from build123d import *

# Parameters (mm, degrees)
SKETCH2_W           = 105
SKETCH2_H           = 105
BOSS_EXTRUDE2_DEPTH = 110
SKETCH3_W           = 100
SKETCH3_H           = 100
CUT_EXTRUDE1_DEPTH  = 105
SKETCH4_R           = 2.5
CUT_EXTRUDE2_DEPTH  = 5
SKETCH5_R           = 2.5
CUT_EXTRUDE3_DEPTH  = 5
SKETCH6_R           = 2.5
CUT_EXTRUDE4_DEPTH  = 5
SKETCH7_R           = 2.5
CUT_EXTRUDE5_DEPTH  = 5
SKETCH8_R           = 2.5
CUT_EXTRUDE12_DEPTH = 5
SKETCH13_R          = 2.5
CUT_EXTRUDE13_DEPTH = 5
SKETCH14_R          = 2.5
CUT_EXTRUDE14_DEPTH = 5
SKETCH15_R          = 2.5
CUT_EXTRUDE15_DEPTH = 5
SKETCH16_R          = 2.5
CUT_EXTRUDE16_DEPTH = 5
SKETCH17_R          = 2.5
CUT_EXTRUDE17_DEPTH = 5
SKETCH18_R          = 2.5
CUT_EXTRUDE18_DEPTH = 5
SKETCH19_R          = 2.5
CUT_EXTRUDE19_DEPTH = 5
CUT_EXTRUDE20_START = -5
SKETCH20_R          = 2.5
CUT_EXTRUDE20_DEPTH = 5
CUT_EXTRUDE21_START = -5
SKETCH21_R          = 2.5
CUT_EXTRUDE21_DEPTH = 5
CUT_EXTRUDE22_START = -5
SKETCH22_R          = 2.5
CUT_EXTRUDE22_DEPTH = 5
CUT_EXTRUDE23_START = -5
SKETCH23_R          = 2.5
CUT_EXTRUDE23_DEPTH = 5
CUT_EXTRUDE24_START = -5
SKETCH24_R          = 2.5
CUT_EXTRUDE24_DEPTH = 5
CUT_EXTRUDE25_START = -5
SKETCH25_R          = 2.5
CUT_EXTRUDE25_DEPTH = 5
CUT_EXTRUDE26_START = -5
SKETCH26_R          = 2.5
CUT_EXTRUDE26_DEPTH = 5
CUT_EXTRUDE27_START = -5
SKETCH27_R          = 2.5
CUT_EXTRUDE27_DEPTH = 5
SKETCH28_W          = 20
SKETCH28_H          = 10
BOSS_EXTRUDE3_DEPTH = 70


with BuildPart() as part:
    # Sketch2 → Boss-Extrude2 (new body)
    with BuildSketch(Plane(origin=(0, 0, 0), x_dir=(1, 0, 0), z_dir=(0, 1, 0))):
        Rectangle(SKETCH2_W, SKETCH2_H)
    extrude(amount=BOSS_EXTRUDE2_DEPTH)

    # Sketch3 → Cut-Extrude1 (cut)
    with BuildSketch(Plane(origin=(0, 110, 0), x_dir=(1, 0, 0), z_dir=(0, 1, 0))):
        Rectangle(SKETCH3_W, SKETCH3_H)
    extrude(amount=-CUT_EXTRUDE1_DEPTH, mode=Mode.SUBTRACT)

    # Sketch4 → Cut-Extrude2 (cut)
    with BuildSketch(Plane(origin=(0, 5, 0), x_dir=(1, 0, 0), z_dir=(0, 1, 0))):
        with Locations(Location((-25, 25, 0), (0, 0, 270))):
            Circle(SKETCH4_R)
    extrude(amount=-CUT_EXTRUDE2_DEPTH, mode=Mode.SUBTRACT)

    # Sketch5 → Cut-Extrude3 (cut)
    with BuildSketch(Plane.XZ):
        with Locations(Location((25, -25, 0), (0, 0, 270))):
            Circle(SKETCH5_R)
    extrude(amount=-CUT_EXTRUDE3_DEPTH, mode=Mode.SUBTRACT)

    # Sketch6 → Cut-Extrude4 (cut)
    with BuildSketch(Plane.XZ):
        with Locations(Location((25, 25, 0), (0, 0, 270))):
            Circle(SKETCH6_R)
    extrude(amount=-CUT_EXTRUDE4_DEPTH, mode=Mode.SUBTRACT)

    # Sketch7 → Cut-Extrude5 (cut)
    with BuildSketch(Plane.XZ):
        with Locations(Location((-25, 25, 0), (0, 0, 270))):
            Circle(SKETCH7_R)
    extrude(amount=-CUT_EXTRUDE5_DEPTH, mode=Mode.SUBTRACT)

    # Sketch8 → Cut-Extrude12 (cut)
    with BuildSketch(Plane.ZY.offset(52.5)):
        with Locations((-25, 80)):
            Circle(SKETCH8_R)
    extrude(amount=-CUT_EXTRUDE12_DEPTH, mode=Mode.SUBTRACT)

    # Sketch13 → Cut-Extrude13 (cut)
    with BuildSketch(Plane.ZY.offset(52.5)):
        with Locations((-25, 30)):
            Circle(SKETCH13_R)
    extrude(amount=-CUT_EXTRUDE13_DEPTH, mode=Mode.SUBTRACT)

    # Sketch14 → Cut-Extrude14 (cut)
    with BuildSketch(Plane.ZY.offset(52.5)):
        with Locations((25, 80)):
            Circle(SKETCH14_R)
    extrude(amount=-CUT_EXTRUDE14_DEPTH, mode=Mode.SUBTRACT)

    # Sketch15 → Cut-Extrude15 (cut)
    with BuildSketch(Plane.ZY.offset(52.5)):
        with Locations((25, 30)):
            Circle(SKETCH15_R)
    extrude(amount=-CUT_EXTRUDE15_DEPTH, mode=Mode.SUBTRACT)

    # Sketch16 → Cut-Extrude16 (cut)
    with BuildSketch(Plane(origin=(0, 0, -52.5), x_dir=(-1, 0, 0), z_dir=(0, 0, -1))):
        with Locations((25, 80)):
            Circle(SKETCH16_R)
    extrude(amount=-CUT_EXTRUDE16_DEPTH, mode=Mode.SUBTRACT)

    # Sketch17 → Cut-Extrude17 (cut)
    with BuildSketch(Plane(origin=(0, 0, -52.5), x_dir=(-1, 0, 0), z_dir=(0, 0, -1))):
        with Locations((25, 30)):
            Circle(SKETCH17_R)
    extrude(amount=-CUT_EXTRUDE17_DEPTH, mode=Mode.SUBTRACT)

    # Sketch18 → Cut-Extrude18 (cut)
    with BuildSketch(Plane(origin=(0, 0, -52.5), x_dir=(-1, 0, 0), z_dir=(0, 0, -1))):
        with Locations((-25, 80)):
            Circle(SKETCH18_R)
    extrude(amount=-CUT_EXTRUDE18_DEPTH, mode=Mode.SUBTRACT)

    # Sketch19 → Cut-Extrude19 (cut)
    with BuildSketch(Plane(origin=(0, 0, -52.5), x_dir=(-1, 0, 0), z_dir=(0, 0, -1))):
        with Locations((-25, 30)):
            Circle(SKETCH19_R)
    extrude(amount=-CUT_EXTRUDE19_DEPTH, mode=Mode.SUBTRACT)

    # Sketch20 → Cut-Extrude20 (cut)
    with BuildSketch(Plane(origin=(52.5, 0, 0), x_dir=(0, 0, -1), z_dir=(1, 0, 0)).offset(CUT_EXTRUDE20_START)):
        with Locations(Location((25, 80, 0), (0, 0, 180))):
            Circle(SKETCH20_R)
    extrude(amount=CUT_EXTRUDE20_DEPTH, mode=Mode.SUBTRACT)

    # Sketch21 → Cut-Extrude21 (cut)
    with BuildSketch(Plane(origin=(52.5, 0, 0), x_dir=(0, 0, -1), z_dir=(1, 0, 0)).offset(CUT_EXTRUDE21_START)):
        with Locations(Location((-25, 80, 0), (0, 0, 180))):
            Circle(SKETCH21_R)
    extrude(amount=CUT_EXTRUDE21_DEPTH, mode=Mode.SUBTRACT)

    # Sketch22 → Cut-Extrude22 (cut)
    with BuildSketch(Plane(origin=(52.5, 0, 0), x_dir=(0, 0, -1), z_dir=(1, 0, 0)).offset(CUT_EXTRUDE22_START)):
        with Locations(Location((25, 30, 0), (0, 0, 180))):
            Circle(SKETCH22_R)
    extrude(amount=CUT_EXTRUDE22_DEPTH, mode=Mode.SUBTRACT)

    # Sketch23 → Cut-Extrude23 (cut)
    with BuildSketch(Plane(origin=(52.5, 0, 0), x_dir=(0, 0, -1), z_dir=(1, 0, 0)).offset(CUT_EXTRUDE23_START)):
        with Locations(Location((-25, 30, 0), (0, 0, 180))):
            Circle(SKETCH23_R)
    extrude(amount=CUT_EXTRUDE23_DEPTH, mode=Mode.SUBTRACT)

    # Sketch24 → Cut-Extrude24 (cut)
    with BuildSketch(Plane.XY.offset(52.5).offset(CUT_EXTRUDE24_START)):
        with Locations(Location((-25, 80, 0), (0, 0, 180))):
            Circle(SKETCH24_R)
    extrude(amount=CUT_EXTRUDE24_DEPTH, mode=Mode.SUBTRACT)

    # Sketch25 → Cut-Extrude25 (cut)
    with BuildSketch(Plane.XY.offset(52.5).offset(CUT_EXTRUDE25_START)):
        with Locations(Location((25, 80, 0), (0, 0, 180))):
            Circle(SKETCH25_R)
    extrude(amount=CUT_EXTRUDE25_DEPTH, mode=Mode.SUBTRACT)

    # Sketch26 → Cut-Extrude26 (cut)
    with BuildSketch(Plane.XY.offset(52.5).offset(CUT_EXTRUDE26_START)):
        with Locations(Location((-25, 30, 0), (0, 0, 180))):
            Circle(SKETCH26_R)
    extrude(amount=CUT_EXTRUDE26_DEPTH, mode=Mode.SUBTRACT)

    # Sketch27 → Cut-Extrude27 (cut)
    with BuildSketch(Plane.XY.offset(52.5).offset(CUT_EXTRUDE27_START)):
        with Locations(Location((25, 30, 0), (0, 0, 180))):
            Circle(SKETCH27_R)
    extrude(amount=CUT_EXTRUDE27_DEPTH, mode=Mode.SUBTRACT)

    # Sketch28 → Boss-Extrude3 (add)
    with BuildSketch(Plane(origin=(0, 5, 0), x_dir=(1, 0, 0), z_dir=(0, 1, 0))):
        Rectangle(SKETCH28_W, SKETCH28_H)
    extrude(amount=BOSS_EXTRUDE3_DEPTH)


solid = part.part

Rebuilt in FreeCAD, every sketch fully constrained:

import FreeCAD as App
import Part
import Sketcher
Q = App.Units.Quantity


def add_polygon(sketch, points):
    """Adds a closed chain of lines whose ends are joined by coincident constraints."""
    first, n = sketch.GeometryCount, len(points)
    for a, b in zip(points, points[1:] + points[:1]):
        sketch.addGeometry(Part.LineSegment(App.Vector(*a, 0), App.Vector(*b, 0)), False)
    for i in range(n):
        sketch.addConstraint(Sketcher.Constraint("Coincident", first + i, 2, first + (i + 1) % n, 1))

doc = App.newDocument("Part")
params = doc.addObject("Spreadsheet::Sheet", "Params")
for row, (alias, value) in enumerate([
    ("sketch1_width", "105 mm"),
    ("pad1_length", "110 mm"),
    ("sketch2_width", "100 mm"),
    ("pocket1_length", "105 mm"),
    ("sketch3_diameter", "5 mm"),
    ("pocket2_length", "5 mm"),
    ("sketch4_diameter", "5 mm"),
    ("pocket3_length", "5 mm"),
    ("sketch5_diameter", "5 mm"),
    ("pocket4_length", "5 mm"),
    ("sketch6_diameter", "5 mm"),
    ("pocket5_length", "5 mm"),
    ("sketch7_diameter", "5 mm"),
    ("pocket6_length", "5 mm"),
    ("sketch8_diameter", "5 mm"),
    ("pocket7_length", "5 mm"),
    ("sketch9_diameter", "5 mm"),
    ("pocket8_length", "5 mm"),
    ("sketch10_diameter", "5 mm"),
    ("pocket9_length", "5 mm"),
    ("sketch11_diameter", "5 mm"),
    ("pocket10_length", "5 mm"),
    ("sketch12_diameter", "5 mm"),
    ("pocket11_length", "5 mm"),
    ("sketch13_diameter", "5 mm"),
    ("pocket12_length", "5 mm"),
    ("sketch14_diameter", "5 mm"),
    ("pocket13_length", "5 mm"),
    ("sketch15_diameter", "5 mm"),
    ("pocket14_length", "5 mm"),
    ("sketch16_diameter", "5 mm"),
    ("pocket15_length", "5 mm"),
    ("sketch17_diameter", "5 mm"),
    ("pocket16_length", "5 mm"),
    ("sketch18_diameter", "5 mm"),
    ("pocket17_length", "5 mm"),
    ("sketch19_diameter", "5 mm"),
    ("pocket18_length", "5 mm"),
    ("sketch20_diameter", "5 mm"),
    ("pocket19_length", "5 mm"),
    ("sketch21_diameter", "5 mm"),
    ("pocket20_length", "5 mm"),
    ("sketch22_diameter", "5 mm"),
    ("pocket21_length", "5 mm"),
    ("sketch23_width", "20 mm"),
    ("sketch23_height", "10 mm"),
    ("pad2_length", "70 mm"),
], start=1):
    params.set(f"A{row}", alias)
    params.set(f"B{row}", "=" + value)
    params.setAlias(f"B{row}", alias)

body = doc.addObject("PartDesign::Body", "Body")

sketch1 = body.newObject("Sketcher::SketchObject", "Sketch")
sketch1.AttachmentSupport = (doc.getObject("XZ_Plane"), [""])
sketch1.MapMode = "FlatFace"
add_polygon(sketch1, [(-52, -52), (-52, 52), (52, 52), (52, -52)])
sketch1.addConstraint(Sketcher.Constraint("Vertical", 0))
sketch1.addConstraint(Sketcher.Constraint("Horizontal", 1))
sketch1.addConstraint(Sketcher.Constraint("Vertical", 2))
sketch1.addConstraint(Sketcher.Constraint("Horizontal", 3))
sketch1.addConstraint(Sketcher.Constraint("Symmetric", 0, 2, 2, 2, -1, 1))
sketch1.addConstraint(Sketcher.Constraint("Equal", 3, 0))
sketch1.addConstraint(Sketcher.Constraint("DistanceX", 1, 1, 1, 2, Q("105 mm")))
sketch1.setExpression("Constraints[10]", "Params.sketch1_width")
pad1 = body.newObject("PartDesign::Pad", "Pad")
pad1.Profile = sketch1
pad1.setExpression("Length", "Params.pad1_length")
pad1.Reversed = True

sketch2 = body.newObject("Sketcher::SketchObject", "Sketch001")
sketch2.AttachmentSupport = (doc.getObject("XZ_Plane"), [""])
sketch2.MapMode = "FlatFace"
sketch2.AttachmentOffset = App.Placement(App.Vector(0, 0, -110), App.Rotation())
add_polygon(sketch2, [(-50, -50), (-50, 50), (50, 50), (50, -50)])
sketch2.addConstraint(Sketcher.Constraint("Vertical", 0))
sketch2.addConstraint(Sketcher.Constraint("Horizontal", 1))
sketch2.addConstraint(Sketcher.Constraint("Vertical", 2))
sketch2.addConstraint(Sketcher.Constraint("Horizontal", 3))
sketch2.addConstraint(Sketcher.Constraint("Symmetric", 0, 2, 2, 2, -1, 1))
sketch2.addConstraint(Sketcher.Constraint("Equal", 3, 0))
sketch2.addConstraint(Sketcher.Constraint("DistanceX", 1, 1, 1, 2, Q("100 mm")))
sketch2.setExpression("Constraints[10]", "Params.sketch2_width")
pocket1 = body.newObject("PartDesign::Pocket", "Pocket")
pocket1.Profile = sketch2
pocket1.setExpression("Length", "Params.pocket1_length")
pocket1.Reversed = True

sketch3 = body.newObject("Sketcher::SketchObject", "Sketch002")
sketch3.AttachmentSupport = (doc.getObject("XZ_Plane"), [""])
sketch3.MapMode = "FlatFace"
sketch3.AttachmentOffset = App.Placement(App.Vector(0, 0, -5), App.Rotation())
sketch3.addGeometry(Part.Circle(App.Vector(-25, -25, 0), App.Vector(0, 0, 1), 2.5), False)
sketch3.addConstraint(Sketcher.Constraint("Diameter", 0, Q("5 mm")))
sketch3.addConstraint(Sketcher.Constraint("DistanceX", 0, 3, -1, 1, Q("25 mm")))
sketch3.addConstraint(Sketcher.Constraint("DistanceY", 0, 3, -1, 1, Q("25 mm")))
sketch3.setExpression("Constraints[0]", "Params.sketch3_diameter")
pocket2 = body.newObject("PartDesign::Pocket", "Pocket001")
pocket2.Profile = sketch3
pocket2.setExpression("Length", "Params.pocket2_length")
pocket2.Reversed = True

sketch4 = body.newObject("Sketcher::SketchObject", "Sketch003")
sketch4.AttachmentSupport = (doc.getObject("XZ_Plane"), [""])
sketch4.MapMode = "FlatFace"
sketch4.addGeometry(Part.Circle(App.Vector(25, -25, 0), App.Vector(0, 0, 1), 2.5), False)
sketch4.addConstraint(Sketcher.Constraint("Diameter", 0, Q("5 mm")))
sketch4.addConstraint(Sketcher.Constraint("DistanceX", -1, 1, 0, 3, Q("25 mm")))
sketch4.addConstraint(Sketcher.Constraint("DistanceY", 0, 3, -1, 1, Q("25 mm")))
sketch4.setExpression("Constraints[0]", "Params.sketch4_diameter")
pocket3 = body.newObject("PartDesign::Pocket", "Pocket002")
pocket3.Profile = sketch4
pocket3.setExpression("Length", "Params.pocket3_length")

sketch5 = body.newObject("Sketcher::SketchObject", "Sketch004")
sketch5.AttachmentSupport = (doc.getObject("XZ_Plane"), [""])
sketch5.MapMode = "FlatFace"
sketch5.addGeometry(Part.Circle(App.Vector(25, 25, 0), App.Vector(0, 0, 1), 2.5), False)
sketch5.addConstraint(Sketcher.Constraint("Diameter", 0, Q("5 mm")))
sketch5.addConstraint(Sketcher.Constraint("DistanceX", -1, 1, 0, 3, Q("25 mm")))
sketch5.addConstraint(Sketcher.Constraint("DistanceY", -1, 1, 0, 3, Q("25 mm")))
sketch5.setExpression("Constraints[0]", "Params.sketch5_diameter")
pocket4 = body.newObject("PartDesign::Pocket", "Pocket003")
pocket4.Profile = sketch5
pocket4.setExpression("Length", "Params.pocket4_length")

sketch6 = body.newObject("Sketcher::SketchObject", "Sketch005")
sketch6.AttachmentSupport = (doc.getObject("XZ_Plane"), [""])
sketch6.MapMode = "FlatFace"
sketch6.addGeometry(Part.Circle(App.Vector(-25, 25, 0), App.Vector(0, 0, 1), 2.5), False)
sketch6.addConstraint(Sketcher.Constraint("Diameter", 0, Q("5 mm")))
sketch6.addConstraint(Sketcher.Constraint("DistanceX", 0, 3, -1, 1, Q("25 mm")))
sketch6.addConstraint(Sketcher.Constraint("DistanceY", -1, 1, 0, 3, Q("25 mm")))
sketch6.setExpression("Constraints[0]", "Params.sketch6_diameter")
pocket5 = body.newObject("PartDesign::Pocket", "Pocket004")
pocket5.Profile = sketch6
pocket5.setExpression("Length", "Params.pocket5_length")

sketch7 = body.newObject("Sketcher::SketchObject", "Sketch006")
sketch7.AttachmentSupport = (doc.getObject("YZ_Plane"), [""])
sketch7.MapMode = "FlatFace"
sketch7.AttachmentOffset = App.Placement(App.Vector(0, 0, -52.5), App.Rotation())
sketch7.addGeometry(Part.Circle(App.Vector(80, -25, 0), App.Vector(0, 0, 1), 2.5), False)
sketch7.addConstraint(Sketcher.Constraint("Diameter", 0, Q("5 mm")))
sketch7.addConstraint(Sketcher.Constraint("DistanceX", -1, 1, 0, 3, Q("80 mm")))
sketch7.addConstraint(Sketcher.Constraint("DistanceY", 0, 3, -1, 1, Q("25 mm")))
sketch7.setExpression("Constraints[0]", "Params.sketch7_diameter")
pocket6 = body.newObject("PartDesign::Pocket", "Pocket005")
pocket6.Profile = sketch7
pocket6.setExpression("Length", "Params.pocket6_length")
pocket6.Reversed = True

sketch8 = body.newObject("Sketcher::SketchObject", "Sketch007")
sketch8.AttachmentSupport = (doc.getObject("YZ_Plane"), [""])
sketch8.MapMode = "FlatFace"
sketch8.AttachmentOffset = App.Placement(App.Vector(0, 0, -52.5), App.Rotation())
sketch8.addGeometry(Part.Circle(App.Vector(30, -25, 0), App.Vector(0, 0, 1), 2.5), False)
sketch8.addConstraint(Sketcher.Constraint("Diameter", 0, Q("5 mm")))
sketch8.addConstraint(Sketcher.Constraint("DistanceX", -1, 1, 0, 3, Q("30 mm")))
sketch8.addConstraint(Sketcher.Constraint("DistanceY", 0, 3, -1, 1, Q("25 mm")))
sketch8.setExpression("Constraints[0]", "Params.sketch8_diameter")
pocket7 = body.newObject("PartDesign::Pocket", "Pocket006")
pocket7.Profile = sketch8
pocket7.setExpression("Length", "Params.pocket7_length")
pocket7.Reversed = True

sketch9 = body.newObject("Sketcher::SketchObject", "Sketch008")
sketch9.AttachmentSupport = (doc.getObject("YZ_Plane"), [""])
sketch9.MapMode = "FlatFace"
sketch9.AttachmentOffset = App.Placement(App.Vector(0, 0, -52.5), App.Rotation())
sketch9.addGeometry(Part.Circle(App.Vector(80, 25, 0), App.Vector(0, 0, 1), 2.5), False)
sketch9.addConstraint(Sketcher.Constraint("Diameter", 0, Q("5 mm")))
sketch9.addConstraint(Sketcher.Constraint("DistanceX", -1, 1, 0, 3, Q("80 mm")))
sketch9.addConstraint(Sketcher.Constraint("DistanceY", -1, 1, 0, 3, Q("25 mm")))
sketch9.setExpression("Constraints[0]", "Params.sketch9_diameter")
pocket8 = body.newObject("PartDesign::Pocket", "Pocket007")
pocket8.Profile = sketch9
pocket8.setExpression("Length", "Params.pocket8_length")
pocket8.Reversed = True

sketch10 = body.newObject("Sketcher::SketchObject", "Sketch009")
sketch10.AttachmentSupport = (doc.getObject("YZ_Plane"), [""])
sketch10.MapMode = "FlatFace"
sketch10.AttachmentOffset = App.Placement(App.Vector(0, 0, -52.5), App.Rotation())
sketch10.addGeometry(Part.Circle(App.Vector(30, 25, 0), App.Vector(0, 0, 1), 2.5), False)
sketch10.addConstraint(Sketcher.Constraint("Diameter", 0, Q("5 mm")))
sketch10.addConstraint(Sketcher.Constraint("DistanceX", -1, 1, 0, 3, Q("30 mm")))
sketch10.addConstraint(Sketcher.Constraint("DistanceY", -1, 1, 0, 3, Q("25 mm")))
sketch10.setExpression("Constraints[0]", "Params.sketch10_diameter")
pocket9 = body.newObject("PartDesign::Pocket", "Pocket008")
pocket9.Profile = sketch10
pocket9.setExpression("Length", "Params.pocket9_length")
pocket9.Reversed = True

sketch11 = body.newObject("Sketcher::SketchObject", "Sketch010")
sketch11.AttachmentSupport = (doc.getObject("XY_Plane"), [""])
sketch11.MapMode = "FlatFace"
sketch11.AttachmentOffset = App.Placement(App.Vector(0, 0, -52.5), App.Rotation())
sketch11.addGeometry(Part.Circle(App.Vector(-25, 80, 0), App.Vector(0, 0, 1), 2.5), False)
sketch11.addConstraint(Sketcher.Constraint("Diameter", 0, Q("5 mm")))
sketch11.addConstraint(Sketcher.Constraint("DistanceX", 0, 3, -1, 1, Q("25 mm")))
sketch11.addConstraint(Sketcher.Constraint("DistanceY", -1, 1, 0, 3, Q("80 mm")))
sketch11.setExpression("Constraints[0]", "Params.sketch11_diameter")
pocket10 = body.newObject("PartDesign::Pocket", "Pocket009")
pocket10.Profile = sketch11
pocket10.setExpression("Length", "Params.pocket10_length")
pocket10.Reversed = True

sketch12 = body.newObject("Sketcher::SketchObject", "Sketch011")
sketch12.AttachmentSupport = (doc.getObject("XY_Plane"), [""])
sketch12.MapMode = "FlatFace"
sketch12.AttachmentOffset = App.Placement(App.Vector(0, 0, -52.5), App.Rotation())
sketch12.addGeometry(Part.Circle(App.Vector(-25, 30, 0), App.Vector(0, 0, 1), 2.5), False)
sketch12.addConstraint(Sketcher.Constraint("Diameter", 0, Q("5 mm")))
sketch12.addConstraint(Sketcher.Constraint("DistanceX", 0, 3, -1, 1, Q("25 mm")))
sketch12.addConstraint(Sketcher.Constraint("DistanceY", -1, 1, 0, 3, Q("30 mm")))
sketch12.setExpression("Constraints[0]", "Params.sketch12_diameter")
pocket11 = body.newObject("PartDesign::Pocket", "Pocket010")
pocket11.Profile = sketch12
pocket11.setExpression("Length", "Params.pocket11_length")
pocket11.Reversed = True

sketch13 = body.newObject("Sketcher::SketchObject", "Sketch012")
sketch13.AttachmentSupport = (doc.getObject("XY_Plane"), [""])
sketch13.MapMode = "FlatFace"
sketch13.AttachmentOffset = App.Placement(App.Vector(0, 0, -52.5), App.Rotation())
sketch13.addGeometry(Part.Circle(App.Vector(25, 80, 0), App.Vector(0, 0, 1), 2.5), False)
sketch13.addConstraint(Sketcher.Constraint("Diameter", 0, Q("5 mm")))
sketch13.addConstraint(Sketcher.Constraint("DistanceX", -1, 1, 0, 3, Q("25 mm")))
sketch13.addConstraint(Sketcher.Constraint("DistanceY", -1, 1, 0, 3, Q("80 mm")))
sketch13.setExpression("Constraints[0]", "Params.sketch13_diameter")
pocket12 = body.newObject("PartDesign::Pocket", "Pocket011")
pocket12.Profile = sketch13
pocket12.setExpression("Length", "Params.pocket12_length")
pocket12.Reversed = True

sketch14 = body.newObject("Sketcher::SketchObject", "Sketch013")
sketch14.AttachmentSupport = (doc.getObject("XY_Plane"), [""])
sketch14.MapMode = "FlatFace"
sketch14.AttachmentOffset = App.Placement(App.Vector(0, 0, -52.5), App.Rotation())
sketch14.addGeometry(Part.Circle(App.Vector(25, 30, 0), App.Vector(0, 0, 1), 2.5), False)
sketch14.addConstraint(Sketcher.Constraint("Diameter", 0, Q("5 mm")))
sketch14.addConstraint(Sketcher.Constraint("DistanceX", -1, 1, 0, 3, Q("25 mm")))
sketch14.addConstraint(Sketcher.Constraint("DistanceY", -1, 1, 0, 3, Q("30 mm")))
sketch14.setExpression("Constraints[0]", "Params.sketch14_diameter")
pocket13 = body.newObject("PartDesign::Pocket", "Pocket012")
pocket13.Profile = sketch14
pocket13.setExpression("Length", "Params.pocket13_length")
pocket13.Reversed = True

sketch15 = body.newObject("Sketcher::SketchObject", "Sketch014")
sketch15.AttachmentSupport = (doc.getObject("YZ_Plane"), [""])
sketch15.MapMode = "FlatFace"
sketch15.AttachmentOffset = App.Placement(App.Vector(0, 0, 47.5), App.Rotation())
sketch15.addGeometry(Part.Circle(App.Vector(80, -25, 0), App.Vector(0, 0, 1), 2.5), False)
sketch15.addConstraint(Sketcher.Constraint("Diameter", 0, Q("5 mm")))
sketch15.addConstraint(Sketcher.Constraint("DistanceX", -1, 1, 0, 3, Q("80 mm")))
sketch15.addConstraint(Sketcher.Constraint("DistanceY", 0, 3, -1, 1, Q("25 mm")))
sketch15.setExpression("Constraints[0]", "Params.sketch15_diameter")
pocket14 = body.newObject("PartDesign::Pocket", "Pocket013")
pocket14.Profile = sketch15
pocket14.setExpression("Length", "Params.pocket14_length")
pocket14.Reversed = True

sketch16 = body.newObject("Sketcher::SketchObject", "Sketch015")
sketch16.AttachmentSupport = (doc.getObject("YZ_Plane"), [""])
sketch16.MapMode = "FlatFace"
sketch16.AttachmentOffset = App.Placement(App.Vector(0, 0, 47.5), App.Rotation())
sketch16.addGeometry(Part.Circle(App.Vector(80, 25, 0), App.Vector(0, 0, 1), 2.5), False)
sketch16.addConstraint(Sketcher.Constraint("Diameter", 0, Q("5 mm")))
sketch16.addConstraint(Sketcher.Constraint("DistanceX", -1, 1, 0, 3, Q("80 mm")))
sketch16.addConstraint(Sketcher.Constraint("DistanceY", -1, 1, 0, 3, Q("25 mm")))
sketch16.setExpression("Constraints[0]", "Params.sketch16_diameter")
pocket15 = body.newObject("PartDesign::Pocket", "Pocket014")
pocket15.Profile = sketch16
pocket15.setExpression("Length", "Params.pocket15_length")
pocket15.Reversed = True

sketch17 = body.newObject("Sketcher::SketchObject", "Sketch016")
sketch17.AttachmentSupport = (doc.getObject("YZ_Plane"), [""])
sketch17.MapMode = "FlatFace"
sketch17.AttachmentOffset = App.Placement(App.Vector(0, 0, 47.5), App.Rotation())
sketch17.addGeometry(Part.Circle(App.Vector(30, -25, 0), App.Vector(0, 0, 1), 2.5), False)
sketch17.addConstraint(Sketcher.Constraint("Diameter", 0, Q("5 mm")))
sketch17.addConstraint(Sketcher.Constraint("DistanceX", -1, 1, 0, 3, Q("30 mm")))
sketch17.addConstraint(Sketcher.Constraint("DistanceY", 0, 3, -1, 1, Q("25 mm")))
sketch17.setExpression("Constraints[0]", "Params.sketch17_diameter")
pocket16 = body.newObject("PartDesign::Pocket", "Pocket015")
pocket16.Profile = sketch17
pocket16.setExpression("Length", "Params.pocket16_length")
pocket16.Reversed = True

sketch18 = body.newObject("Sketcher::SketchObject", "Sketch017")
sketch18.AttachmentSupport = (doc.getObject("YZ_Plane"), [""])
sketch18.MapMode = "FlatFace"
sketch18.AttachmentOffset = App.Placement(App.Vector(0, 0, 47.5), App.Rotation())
sketch18.addGeometry(Part.Circle(App.Vector(30, 25, 0), App.Vector(0, 0, 1), 2.5), False)
sketch18.addConstraint(Sketcher.Constraint("Diameter", 0, Q("5 mm")))
sketch18.addConstraint(Sketcher.Constraint("DistanceX", -1, 1, 0, 3, Q("30 mm")))
sketch18.addConstraint(Sketcher.Constraint("DistanceY", -1, 1, 0, 3, Q("25 mm")))
sketch18.setExpression("Constraints[0]", "Params.sketch18_diameter")
pocket17 = body.newObject("PartDesign::Pocket", "Pocket016")
pocket17.Profile = sketch18
pocket17.setExpression("Length", "Params.pocket17_length")
pocket17.Reversed = True

sketch19 = body.newObject("Sketcher::SketchObject", "Sketch018")
sketch19.AttachmentSupport = (doc.getObject("XY_Plane"), [""])
sketch19.MapMode = "FlatFace"
sketch19.AttachmentOffset = App.Placement(App.Vector(0, 0, 47.5), App.Rotation())
sketch19.addGeometry(Part.Circle(App.Vector(-25, 80, 0), App.Vector(0, 0, 1), 2.5), False)
sketch19.addConstraint(Sketcher.Constraint("Diameter", 0, Q("5 mm")))
sketch19.addConstraint(Sketcher.Constraint("DistanceX", 0, 3, -1, 1, Q("25 mm")))
sketch19.addConstraint(Sketcher.Constraint("DistanceY", -1, 1, 0, 3, Q("80 mm")))
sketch19.setExpression("Constraints[0]", "Params.sketch19_diameter")
pocket18 = body.newObject("PartDesign::Pocket", "Pocket017")
pocket18.Profile = sketch19
pocket18.setExpression("Length", "Params.pocket18_length")
pocket18.Reversed = True

sketch20 = body.newObject("Sketcher::SketchObject", "Sketch019")
sketch20.AttachmentSupport = (doc.getObject("XY_Plane"), [""])
sketch20.MapMode = "FlatFace"
sketch20.AttachmentOffset = App.Placement(App.Vector(0, 0, 47.5), App.Rotation())
sketch20.addGeometry(Part.Circle(App.Vector(25, 80, 0), App.Vector(0, 0, 1), 2.5), False)
sketch20.addConstraint(Sketcher.Constraint("Diameter", 0, Q("5 mm")))
sketch20.addConstraint(Sketcher.Constraint("DistanceX", -1, 1, 0, 3, Q("25 mm")))
sketch20.addConstraint(Sketcher.Constraint("DistanceY", -1, 1, 0, 3, Q("80 mm")))
sketch20.setExpression("Constraints[0]", "Params.sketch20_diameter")
pocket19 = body.newObject("PartDesign::Pocket", "Pocket018")
pocket19.Profile = sketch20
pocket19.setExpression("Length", "Params.pocket19_length")
pocket19.Reversed = True

sketch21 = body.newObject("Sketcher::SketchObject", "Sketch020")
sketch21.AttachmentSupport = (doc.getObject("XY_Plane"), [""])
sketch21.MapMode = "FlatFace"
sketch21.AttachmentOffset = App.Placement(App.Vector(0, 0, 47.5), App.Rotation())
sketch21.addGeometry(Part.Circle(App.Vector(-25, 30, 0), App.Vector(0, 0, 1), 2.5), False)
sketch21.addConstraint(Sketcher.Constraint("Diameter", 0, Q("5 mm")))
sketch21.addConstraint(Sketcher.Constraint("DistanceX", 0, 3, -1, 1, Q("25 mm")))
sketch21.addConstraint(Sketcher.Constraint("DistanceY", -1, 1, 0, 3, Q("30 mm")))
sketch21.setExpression("Constraints[0]", "Params.sketch21_diameter")
pocket20 = body.newObject("PartDesign::Pocket", "Pocket019")
pocket20.Profile = sketch21
pocket20.setExpression("Length", "Params.pocket20_length")
pocket20.Reversed = True

sketch22 = body.newObject("Sketcher::SketchObject", "Sketch021")
sketch22.AttachmentSupport = (doc.getObject("XY_Plane"), [""])
sketch22.MapMode = "FlatFace"
sketch22.AttachmentOffset = App.Placement(App.Vector(0, 0, 47.5), App.Rotation())
sketch22.addGeometry(Part.Circle(App.Vector(25, 30, 0), App.Vector(0, 0, 1), 2.5), False)
sketch22.addConstraint(Sketcher.Constraint("Diameter", 0, Q("5 mm")))
sketch22.addConstraint(Sketcher.Constraint("DistanceX", -1, 1, 0, 3, Q("25 mm")))
sketch22.addConstraint(Sketcher.Constraint("DistanceY", -1, 1, 0, 3, Q("30 mm")))
sketch22.setExpression("Constraints[0]", "Params.sketch22_diameter")
pocket21 = body.newObject("PartDesign::Pocket", "Pocket020")
pocket21.Profile = sketch22
pocket21.setExpression("Length", "Params.pocket21_length")
pocket21.Reversed = True

sketch23 = body.newObject("Sketcher::SketchObject", "Sketch022")
sketch23.AttachmentSupport = (doc.getObject("XZ_Plane"), [""])
sketch23.MapMode = "FlatFace"
sketch23.AttachmentOffset = App.Placement(App.Vector(0, 0, -5), App.Rotation())
add_polygon(sketch23, [(-10, -5), (-10, 5), (10, 5), (10, -5)])
sketch23.addConstraint(Sketcher.Constraint("Vertical", 0))
sketch23.addConstraint(Sketcher.Constraint("Horizontal", 1))
sketch23.addConstraint(Sketcher.Constraint("Vertical", 2))
sketch23.addConstraint(Sketcher.Constraint("Horizontal", 3))
sketch23.addConstraint(Sketcher.Constraint("Symmetric", 0, 2, 2, 2, -1, 1))
sketch23.addConstraint(Sketcher.Constraint("DistanceX", 1, 1, 1, 2, Q("20 mm")))
sketch23.addConstraint(Sketcher.Constraint("DistanceY", 0, 1, 0, 2, Q("10 mm")))
sketch23.setExpression("Constraints[9]", "Params.sketch23_width")
sketch23.setExpression("Constraints[10]", "Params.sketch23_height")
pad2 = body.newObject("PartDesign::Pad", "Pad001")
pad2.Profile = sketch23
pad2.setExpression("Length", "Params.pad2_length")
pad2.Reversed = True

doc.recompute()
